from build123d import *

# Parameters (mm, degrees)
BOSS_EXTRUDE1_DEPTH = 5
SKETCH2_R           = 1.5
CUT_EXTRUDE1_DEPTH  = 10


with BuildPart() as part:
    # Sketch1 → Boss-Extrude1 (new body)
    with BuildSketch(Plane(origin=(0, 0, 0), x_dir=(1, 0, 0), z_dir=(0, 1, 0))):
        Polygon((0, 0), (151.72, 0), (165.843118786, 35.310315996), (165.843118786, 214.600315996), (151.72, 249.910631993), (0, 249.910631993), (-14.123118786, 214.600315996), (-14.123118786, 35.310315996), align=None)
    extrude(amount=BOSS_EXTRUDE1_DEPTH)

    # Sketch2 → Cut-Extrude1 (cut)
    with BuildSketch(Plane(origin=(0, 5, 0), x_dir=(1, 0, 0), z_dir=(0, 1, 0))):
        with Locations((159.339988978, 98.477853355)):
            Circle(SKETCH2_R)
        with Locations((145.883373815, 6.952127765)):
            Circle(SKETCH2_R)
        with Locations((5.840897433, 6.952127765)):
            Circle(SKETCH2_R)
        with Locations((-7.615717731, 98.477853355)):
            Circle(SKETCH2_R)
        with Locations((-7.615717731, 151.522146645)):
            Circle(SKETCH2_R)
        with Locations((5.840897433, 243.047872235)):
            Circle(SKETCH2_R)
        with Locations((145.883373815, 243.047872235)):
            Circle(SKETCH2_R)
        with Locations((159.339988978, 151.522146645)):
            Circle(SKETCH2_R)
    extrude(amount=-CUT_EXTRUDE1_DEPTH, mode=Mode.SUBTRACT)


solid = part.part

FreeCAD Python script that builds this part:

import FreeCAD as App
import Part
import Sketcher
Q = App.Units.Quantity


def add_polygon(sketch, points):
    """Adds a closed chain of lines whose ends are joined by coincident constraints."""
    first, n = sketch.GeometryCount, len(points)
    for a, b in zip(points, points[1:] + points[:1]):
        sketch.addGeometry(Part.LineSegment(App.Vector(*a, 0), App.Vector(*b, 0)), False)
    for i in range(n):
        sketch.addConstraint(Sketcher.Constraint("Coincident", first + i, 2, first + (i + 1) % n, 1))

doc = App.newDocument("Part")
body = doc.addObject("PartDesign::Body", "Body")

# Sketch on XZ plane
sketch1 = body.newObject("Sketcher::SketchObject", "Sketch")
sketch1.AttachmentSupport = (doc.getObject("XZ_Plane"), [""])
sketch1.MapMode = "FlatFace"
add_polygon(sketch1, [(0, 0), (152, 0), (166, -35), (166, -215), (152, -250), (0, -250), (-14, -215), (-14, -35)])  # lines 0-7
sketch1.addConstraint(Sketcher.Constraint("Horizontal", 0))
sketch1.addConstraint(Sketcher.Constraint("Vertical", 2))
sketch1.addConstraint(Sketcher.Constraint("Horizontal", 4))
sketch1.addConstraint(Sketcher.Constraint("Vertical", 6))
sketch1.addConstraint(Sketcher.Constraint("Coincident", 7, 2, -1, 1))
sketch1.addConstraint(Sketcher.Constraint("PointOnObject", 4, 2, -2))
sketch1.addConstraint(Sketcher.Constraint("Parallel", 1, 5))
sketch1.addConstraint(Sketcher.Constraint("Parallel", 3, 7))
sketch1.addConstraint(Sketcher.Constraint("Horizontal", 2, 2, 5, 2))
sketch1.addConstraint(Sketcher.Constraint("Horizontal", 1, 2, 6, 2))
sketch1.addConstraint(Sketcher.Constraint("Vertical", 0, 2, 3, 2))
sketch1.addConstraint(Sketcher.Constraint("Angle", 1, Q("-68.2 deg")))
sketch1.addConstraint(Sketcher.Constraint("DistanceX", 0, 1, 0, 2, 151.72))
sketch1.addConstraint(Sketcher.Constraint("DistanceY", 2, 2, 2, 1, 179.29))
sketch1.addConstraint(Sketcher.Constraint("Distance", 1, 38.03))
pad1 = body.newObject("PartDesign::Pad", "Pad")
pad1.Profile = sketch1
pad1.Length = 5
pad1.Reversed = True

# Sketch on XZ plane
sketch2 = body.newObject("Sketcher::SketchObject", "Sketch001")
sketch2.AttachmentSupport = (doc.getObject("XZ_Plane"), [""])
sketch2.MapMode = "FlatFace"
sketch2.AttachmentOffset = App.Placement(App.Vector(0, 0, -5), App.Rotation())
sketch2.addGeometry(Part.Circle(App.Vector(159.3, -98.5, 0), App.Vector(0, 0, 1), 1.5), False)
sketch2.addGeometry(Part.Circle(App.Vector(145.9, -7, 0), App.Vector(0, 0, 1), 1.5), False)
sketch2.addGeometry(Part.Circle(App.Vector(5.8, -7, 0), App.Vector(0, 0, 1), 1.5), False)
sketch2.addGeometry(Part.Circle(App.Vector(-7.6, -98.5, 0), App.Vector(0, 0, 1), 1.5), False)
sketch2.addGeometry(Part.Circle(App.Vector(-7.6, -151.5, 0), App.Vector(0, 0, 1), 1.5), False)
sketch2.addGeometry(Part.Circle(App.Vector(5.8, -243, 0), App.Vector(0, 0, 1), 1.5), False)
sketch2.addGeometry(Part.Circle(App.Vector(145.9, -243, 0), App.Vector(0, 0, 1), 1.5), False)
sketch2.addGeometry(Part.Circle(App.Vector(159.3, -151.5, 0), App.Vector(0, 0, 1), 1.5), False)
sketch2.addConstraint(Sketcher.Constraint("Equal", 0, 1))
sketch2.addConstraint(Sketcher.Constraint("Equal", 1, 2))
sketch2.addConstraint(Sketcher.Constraint("Equal", 2, 3))
sketch2.addConstraint(Sketcher.Constraint("Equal", 3, 4))
sketch2.addConstraint(Sketcher.Constraint("Equal", 4, 5))
sketch2.addConstraint(Sketcher.Constraint("Equal", 5, 6))
sketch2.addConstraint(Sketcher.Constraint("Equal", 6, 7))
sketch2.addConstraint(Sketcher.Constraint("Horizontal", 1, 3, 2, 3))
sketch2.addConstraint(Sketcher.Constraint("Horizontal", 0, 3, 3, 3))
sketch2.addConstraint(Sketcher.Constraint("Horizontal", 5, 3, 6, 3))
sketch2.addConstraint(Sketcher.Constraint("Horizontal", 4, 3, 7, 3))
sketch2.addConstraint(Sketcher.Constraint("Vertical", 3, 3, 4, 3))
sketch2.addConstraint(Sketcher.Constraint("Vertical", 2, 3, 5, 3))
sketch2.addConstraint(Sketcher.Constraint("Vertical", 1, 3, 6, 3))
sketch2.addConstraint(Sketcher.Constraint("Vertical", 0, 3, 7, 3))
sketch2.addConstraint(Sketcher.Constraint("Diameter", 0, 3.0))
sketch2.addConstraint(Sketcher.Constraint("DistanceX", -1, 1, 0, 3, 159.339989))
sketch2.addConstraint(Sketcher.Constraint("DistanceX", 2, 3, 0, 3, 153.499092))
sketch2.addConstraint(Sketcher.Constraint("DistanceX", 3, 3, 1, 3, 153.499092))
sketch2.addConstraint(Sketcher.Constraint("DistanceY", 4, 3, 2, 3, 144.570019))
sketch2.addConstraint(Sketcher.Constraint("DistanceY", 5, 3, 3, 3, 144.570019))
sketch2.addConstraint(Sketcher.Constraint("DistanceY", 0, 3, -1, 1, 98.477853))
sketch2.addConstraint(Sketcher.Constraint("DistanceX", -1, 1, 1, 3, 145.883374))
sketch2.addConstraint(Sketcher.Constraint("DistanceY", 1, 3, -1, 1, 6.952128))
pocket1 = body.newObject("PartDesign::Pocket", "Pocket")
pocket1.Profile = sketch2
pocket1.Length = 10
pocket1.Reversed = True

doc.recompute()
